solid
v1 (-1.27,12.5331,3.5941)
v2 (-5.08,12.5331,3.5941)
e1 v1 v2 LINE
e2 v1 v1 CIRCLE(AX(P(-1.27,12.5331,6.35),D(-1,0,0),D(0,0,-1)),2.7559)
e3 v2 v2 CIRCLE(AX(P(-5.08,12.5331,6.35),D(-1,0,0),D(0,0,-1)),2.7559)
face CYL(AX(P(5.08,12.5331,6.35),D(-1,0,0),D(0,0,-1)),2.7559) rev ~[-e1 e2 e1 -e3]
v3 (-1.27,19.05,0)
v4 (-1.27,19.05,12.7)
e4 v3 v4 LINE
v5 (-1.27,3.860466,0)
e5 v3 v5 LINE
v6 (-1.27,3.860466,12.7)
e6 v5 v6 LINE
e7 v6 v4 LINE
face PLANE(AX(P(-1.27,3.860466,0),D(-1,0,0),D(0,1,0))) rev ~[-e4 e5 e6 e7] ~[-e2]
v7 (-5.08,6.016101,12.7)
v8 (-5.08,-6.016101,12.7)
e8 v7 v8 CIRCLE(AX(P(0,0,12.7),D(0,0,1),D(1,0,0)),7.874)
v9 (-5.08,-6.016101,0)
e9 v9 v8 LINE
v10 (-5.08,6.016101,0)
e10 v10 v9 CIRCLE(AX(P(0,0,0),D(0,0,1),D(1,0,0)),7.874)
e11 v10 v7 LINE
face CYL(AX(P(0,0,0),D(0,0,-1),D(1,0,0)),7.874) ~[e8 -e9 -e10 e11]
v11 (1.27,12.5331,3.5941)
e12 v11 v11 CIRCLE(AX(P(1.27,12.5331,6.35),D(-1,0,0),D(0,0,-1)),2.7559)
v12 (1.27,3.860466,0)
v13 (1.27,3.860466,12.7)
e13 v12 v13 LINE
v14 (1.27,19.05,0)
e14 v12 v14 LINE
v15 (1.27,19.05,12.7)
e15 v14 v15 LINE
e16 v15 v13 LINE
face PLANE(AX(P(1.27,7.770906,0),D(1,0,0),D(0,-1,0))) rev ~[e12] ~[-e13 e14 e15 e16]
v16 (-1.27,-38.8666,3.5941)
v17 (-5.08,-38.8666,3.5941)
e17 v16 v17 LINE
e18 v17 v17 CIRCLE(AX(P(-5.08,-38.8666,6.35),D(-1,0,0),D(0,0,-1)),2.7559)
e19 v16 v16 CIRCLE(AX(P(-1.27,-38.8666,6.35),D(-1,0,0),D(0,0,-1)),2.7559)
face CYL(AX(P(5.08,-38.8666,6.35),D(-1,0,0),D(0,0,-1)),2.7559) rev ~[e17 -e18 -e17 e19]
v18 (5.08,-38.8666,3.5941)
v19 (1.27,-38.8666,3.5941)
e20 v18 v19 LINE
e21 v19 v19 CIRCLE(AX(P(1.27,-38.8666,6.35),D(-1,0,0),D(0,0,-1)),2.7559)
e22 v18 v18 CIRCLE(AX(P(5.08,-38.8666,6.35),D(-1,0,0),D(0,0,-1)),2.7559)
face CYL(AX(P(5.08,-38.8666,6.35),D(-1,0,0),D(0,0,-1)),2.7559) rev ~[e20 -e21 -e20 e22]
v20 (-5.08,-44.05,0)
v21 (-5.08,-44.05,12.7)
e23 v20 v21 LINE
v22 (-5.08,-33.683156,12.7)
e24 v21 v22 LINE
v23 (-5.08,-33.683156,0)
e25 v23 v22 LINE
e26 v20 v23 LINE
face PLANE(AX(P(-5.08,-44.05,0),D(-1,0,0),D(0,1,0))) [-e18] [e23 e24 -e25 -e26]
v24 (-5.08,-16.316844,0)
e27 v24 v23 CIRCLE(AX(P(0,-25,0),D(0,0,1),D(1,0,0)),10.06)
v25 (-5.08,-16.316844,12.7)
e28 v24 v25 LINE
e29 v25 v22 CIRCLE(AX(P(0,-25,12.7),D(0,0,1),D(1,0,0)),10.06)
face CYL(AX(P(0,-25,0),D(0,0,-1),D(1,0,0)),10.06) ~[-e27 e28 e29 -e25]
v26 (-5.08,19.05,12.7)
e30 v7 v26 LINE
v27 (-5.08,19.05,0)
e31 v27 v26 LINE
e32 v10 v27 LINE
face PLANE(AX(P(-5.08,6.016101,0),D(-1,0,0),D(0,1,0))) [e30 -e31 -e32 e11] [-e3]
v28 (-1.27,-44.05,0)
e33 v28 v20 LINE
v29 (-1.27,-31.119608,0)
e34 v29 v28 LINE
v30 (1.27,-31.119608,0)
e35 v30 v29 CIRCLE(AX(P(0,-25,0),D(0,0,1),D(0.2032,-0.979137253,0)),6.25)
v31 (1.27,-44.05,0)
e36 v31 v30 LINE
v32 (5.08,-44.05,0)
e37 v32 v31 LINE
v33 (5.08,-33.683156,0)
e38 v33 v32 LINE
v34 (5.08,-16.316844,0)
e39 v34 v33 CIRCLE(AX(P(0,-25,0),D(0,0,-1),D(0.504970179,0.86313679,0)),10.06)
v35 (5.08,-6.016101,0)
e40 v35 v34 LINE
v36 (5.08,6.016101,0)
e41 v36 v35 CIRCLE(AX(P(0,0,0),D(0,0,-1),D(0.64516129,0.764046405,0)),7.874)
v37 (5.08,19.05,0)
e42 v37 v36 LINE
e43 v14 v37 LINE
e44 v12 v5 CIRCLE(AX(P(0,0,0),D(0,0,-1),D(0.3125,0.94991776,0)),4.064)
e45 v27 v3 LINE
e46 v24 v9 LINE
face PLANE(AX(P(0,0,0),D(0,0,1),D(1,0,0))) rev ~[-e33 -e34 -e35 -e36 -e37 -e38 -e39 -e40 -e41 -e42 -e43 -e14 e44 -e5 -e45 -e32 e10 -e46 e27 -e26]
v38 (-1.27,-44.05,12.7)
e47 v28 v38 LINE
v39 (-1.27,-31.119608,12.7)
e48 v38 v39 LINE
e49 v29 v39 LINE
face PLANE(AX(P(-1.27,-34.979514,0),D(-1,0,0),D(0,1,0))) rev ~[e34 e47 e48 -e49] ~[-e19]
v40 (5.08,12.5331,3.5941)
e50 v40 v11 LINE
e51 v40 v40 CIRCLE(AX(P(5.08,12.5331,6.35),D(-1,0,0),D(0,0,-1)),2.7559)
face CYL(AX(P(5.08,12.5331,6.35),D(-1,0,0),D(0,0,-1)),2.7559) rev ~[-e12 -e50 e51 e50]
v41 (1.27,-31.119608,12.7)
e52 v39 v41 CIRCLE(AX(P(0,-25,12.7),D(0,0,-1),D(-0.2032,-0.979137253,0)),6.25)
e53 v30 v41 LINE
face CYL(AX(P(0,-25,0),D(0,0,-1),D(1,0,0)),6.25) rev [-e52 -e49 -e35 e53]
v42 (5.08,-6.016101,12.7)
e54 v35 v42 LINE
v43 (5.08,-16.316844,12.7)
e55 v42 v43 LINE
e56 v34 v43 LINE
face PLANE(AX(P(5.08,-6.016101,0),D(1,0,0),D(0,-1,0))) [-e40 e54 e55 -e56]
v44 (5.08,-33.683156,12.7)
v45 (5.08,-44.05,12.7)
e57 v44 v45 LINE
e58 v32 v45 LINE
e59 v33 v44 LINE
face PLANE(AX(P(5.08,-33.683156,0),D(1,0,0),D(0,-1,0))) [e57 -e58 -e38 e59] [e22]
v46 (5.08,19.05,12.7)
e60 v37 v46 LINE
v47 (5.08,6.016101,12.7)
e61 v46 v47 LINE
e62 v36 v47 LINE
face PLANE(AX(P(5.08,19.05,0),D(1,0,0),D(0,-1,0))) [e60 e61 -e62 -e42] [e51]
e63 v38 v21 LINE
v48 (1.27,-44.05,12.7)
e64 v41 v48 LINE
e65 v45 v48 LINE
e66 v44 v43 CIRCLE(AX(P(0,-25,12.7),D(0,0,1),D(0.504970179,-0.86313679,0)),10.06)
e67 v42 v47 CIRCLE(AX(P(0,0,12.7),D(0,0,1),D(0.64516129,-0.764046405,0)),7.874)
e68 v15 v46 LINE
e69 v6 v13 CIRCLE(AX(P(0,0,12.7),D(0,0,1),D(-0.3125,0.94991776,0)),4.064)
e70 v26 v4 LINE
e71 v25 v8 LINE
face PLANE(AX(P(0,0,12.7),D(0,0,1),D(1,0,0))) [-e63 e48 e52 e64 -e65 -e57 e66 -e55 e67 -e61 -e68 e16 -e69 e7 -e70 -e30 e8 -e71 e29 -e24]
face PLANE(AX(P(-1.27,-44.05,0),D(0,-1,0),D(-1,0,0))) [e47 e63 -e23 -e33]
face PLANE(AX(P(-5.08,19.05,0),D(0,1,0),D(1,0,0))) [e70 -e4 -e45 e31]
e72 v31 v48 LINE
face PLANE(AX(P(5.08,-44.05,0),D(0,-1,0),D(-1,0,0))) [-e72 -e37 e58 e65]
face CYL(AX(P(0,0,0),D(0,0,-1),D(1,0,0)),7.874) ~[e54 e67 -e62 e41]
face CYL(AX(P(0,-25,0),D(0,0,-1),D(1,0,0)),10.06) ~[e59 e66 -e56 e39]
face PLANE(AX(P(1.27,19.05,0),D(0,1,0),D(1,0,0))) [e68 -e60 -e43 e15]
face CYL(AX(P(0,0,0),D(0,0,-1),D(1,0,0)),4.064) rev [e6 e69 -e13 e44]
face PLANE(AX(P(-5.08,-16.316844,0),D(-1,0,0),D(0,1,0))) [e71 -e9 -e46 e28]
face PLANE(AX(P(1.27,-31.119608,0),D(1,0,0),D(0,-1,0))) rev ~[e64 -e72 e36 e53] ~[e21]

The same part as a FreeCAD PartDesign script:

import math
import FreeCAD as App
import Part
import Sketcher

V = App.Vector
Q = App.Units.Quantity

doc = App.newDocument("Part")
body = doc.addObject("PartDesign::Body", "Body")

sketch1 = body.newObject("Sketcher::SketchObject", "Sketch")
sketch1.AttachmentSupport = (doc.getObject("XY_Plane"), [""])
sketch1.MapMode = "FlatFace"
sketch1.addGeometry([
    Part.LineSegment(V(-1.27, 3.860466, 0), V(-1.27, 19.05, 0)),
    Part.LineSegment(V(-1.27, 19.05, 0), V(-5.08, 19.05, 0)),
    Part.LineSegment(V(-5.08, 19.05, 0), V(-5.08, 6.016101, 0)),
    Part.ArcOfCircle(Part.Circle(V(0, 0, 0), V(0, 0, 1), 7.874), math.radians(130.17777), math.radians(229.82223)),
    Part.LineSegment(V(-5.08, -6.016101, 0), V(-5.08, -16.316844, 0)),
    Part.ArcOfCircle(Part.Circle(V(0, -25, 0), V(0, 0, 1), 10.06), math.radians(120.329373), math.radians(239.670627)),
    Part.LineSegment(V(-5.08, -33.683156, 0), V(-5.08, -44.05, 0)),
    Part.LineSegment(V(-5.08, -44.05, 0), V(-1.27, -44.05, 0)),
    Part.LineSegment(V(-1.27, -44.05, 0), V(-1.27, -31.119608, 0)),
    Part.ArcOfCircle(Part.Circle(V(0, -25, 0), V(0, 0, 1), 6.25), math.radians(-78.275851), math.radians(258.275851)),
    Part.LineSegment(V(1.27, -31.119608, 0), V(1.27, -44.05, 0)),
    Part.LineSegment(V(1.27, -44.05, 0), V(5.08, -44.05, 0)),
    Part.LineSegment(V(5.08, -44.05, 0), V(5.08, -33.683156, 0)),
    Part.ArcOfCircle(Part.Circle(V(0, -25, 0), V(0, 0, 1), 10.06), math.radians(-59.670627), math.radians(59.670627)),
    Part.LineSegment(V(5.08, -16.316844, 0), V(5.08, -6.016101, 0)),
    Part.ArcOfCircle(Part.Circle(V(0, 0, 0), V(0, 0, 1), 7.874), math.radians(-49.82223), math.radians(49.82223)),
    Part.LineSegment(V(5.08, 6.016101, 0), V(5.08, 19.05, 0)),
    Part.LineSegment(V(5.08, 19.05, 0), V(1.27, 19.05, 0)),
    Part.LineSegment(V(1.27, 19.05, 0), V(1.27, 3.860466, 0)),
    Part.ArcOfCircle(Part.Circle(V(0, 0, 0), V(0, 0, 1), 4.064), math.radians(108.209957), math.radians(431.790043)),
], False)
sketch1.addConstraint([
    Sketcher.Constraint("Coincident", 0, 2, 1, 1),
    Sketcher.Constraint("Coincident", 1, 2, 2, 1),
    Sketcher.Constraint("Coincident", 2, 2, 3, 1),
    Sketcher.Constraint("Coincident", 3, 2, 4, 1),
    Sketcher.Constraint("Coincident", 4, 2, 5, 1),
    Sketcher.Constraint("Coincident", 5, 2, 6, 1),
    Sketcher.Constraint("Coincident", 6, 2, 7, 1),
    Sketcher.Constraint("Coincident", 7, 2, 8, 1),
    Sketcher.Constraint("Coincident", 8, 2, 9, 2),
    Sketcher.Constraint("Coincident", 9, 1, 10, 1),
    Sketcher.Constraint("Coincident", 10, 2, 11, 1),
    Sketcher.Constraint("Coincident", 11, 2, 12, 1),
    Sketcher.Constraint("Coincident", 12, 2, 13, 1),
    Sketcher.Constraint("Coincident", 13, 2, 14, 1),
    Sketcher.Constraint("Coincident", 14, 2, 15, 1),
    Sketcher.Constraint("Coincident", 15, 2, 16, 1),
    Sketcher.Constraint("Coincident", 16, 2, 17, 1),
    Sketcher.Constraint("Coincident", 17, 2, 18, 1),
    Sketcher.Constraint("Coincident", 18, 2, 19, 2),
    Sketcher.Constraint("Coincident", 19, 1, 0, 1),
    Sketcher.Constraint("Vertical", 0),
    Sketcher.Constraint("Horizontal", 1),
    Sketcher.Constraint("Vertical", 2),
    Sketcher.Constraint("Vertical", 4),
    Sketcher.Constraint("Vertical", 6),
    Sketcher.Constraint("Horizontal", 7),
    Sketcher.Constraint("Vertical", 8),
    Sketcher.Constraint("Vertical", 10),
    Sketcher.Constraint("Horizontal", 11),
    Sketcher.Constraint("Vertical", 12),
    Sketcher.Constraint("Vertical", 14),
    Sketcher.Constraint("Vertical", 16),
    Sketcher.Constraint("Horizontal", 17),
    Sketcher.Constraint("Vertical", 18),
    Sketcher.Constraint("Coincident", 3, 3, -1, 1),
    Sketcher.Constraint("Coincident", 15, 3, -1, 1),
    Sketcher.Constraint("Coincident", 19, 3, -1, 1),
    Sketcher.Constraint("Coincident", 9, 3, 5, 3),
    Sketcher.Constraint("Coincident", 13, 3, 5, 3),
    Sketcher.Constraint("Equal", 5, 13),
    Sketcher.Constraint("Equal", 3, 15),
    Sketcher.Constraint("Symmetric", 8, 2, 9, 1, -2),
    Sketcher.Constraint("Symmetric", 6, 2, 11, 2, -2),
    Sketcher.Constraint("Symmetric", 1, 2, 16, 2, -2),
    Sketcher.Constraint("Horizontal", 4, 2, 13, 2),
    Sketcher.Constraint("Horizontal", 18, 2, 19, 1),
    Sketcher.Constraint("Vertical", 2, 2, 3, 2),
    Sketcher.Constraint("Vertical", 4, 2, 5, 2),
    Sketcher.Constraint("Vertical", 0, 2, 7, 2),
    Sketcher.Constraint("Radius", 19, Q("0.16 in")),
    Sketcher.Constraint("DistanceX", 1, 2, 1, 1, Q("0.15 in")),
    Sketcher.Constraint("DistanceX", 8, 2, 9, 1, Q("0.1 in")),
    Sketcher.Constraint("DistanceY", -1, 1, 0, 2, Q("0.75 in")),
    Sketcher.Constraint("Radius", 3, Q("0.31 in")),
    Sketcher.Constraint("Radius", 9, 6.25),
    Sketcher.Constraint("DistanceY", 6, 2, 5, 3, Q("0.75 in")),
    Sketcher.Constraint("DistanceY", 5, 3, -1, 1, 25.0),
    Sketcher.Constraint("Radius", 5, 10.06),
])
pad1 = body.newObject("PartDesign::Pad", "Pad")
pad1.Profile = sketch1
pad1.Length = Q("0.5 in")

sketch2 = body.newObject("Sketcher::SketchObject", "Sketch001")
sketch2.AttachmentSupport = (doc.getObject("YZ_Plane"), [""])
sketch2.MapMode = "FlatFace"
sketch2.AttachmentOffset = App.Placement(V(0, 0, 0.2 * 25.4), App.Rotation())
sketch2.addGeometry(Part.Circle(V(-38.8666, 6.35, 0), V(0, 0, 1), 2.7559), False)
sketch2.addConstraint([
    Sketcher.Constraint("Diameter", 0, Q("0.217 in")),
    Sketcher.Constraint("DistanceY", -1, 1, 0, 3, Q("0.25 in")),
    Sketcher.Constraint("DistanceX", 0, 3, -1, 1, 38.8666),
])
doc.recompute()
hole = body.newObject("PartDesign::Hole", "Hole")
hole.Profile = sketch2
hole.ThreadType = "None"
hole.Diameter = Q("0.217 in")
hole.DepthType = "Dimension"
hole.Depth = Q("1.6 in")
hole.DrillPoint = "Flat"

sketch3 = body.newObject("Sketcher::SketchObject", "Sketch002")
sketch3.AttachmentSupport = (doc.getObject("YZ_Plane"), [""])
sketch3.MapMode = "FlatFace"
sketch3.AttachmentOffset = App.Placement(V(0, 0, 0.2 * 25.4), App.Rotation())
sketch3.addGeometry(Part.Circle(V(12.5331, 6.35, 0), V(0, 0, 1), 2.7559), False)
sketch3.addConstraint([
    Sketcher.Constraint("Diameter", 0, Q("0.217 in")),
    Sketcher.Constraint("DistanceY", -1, 1, 0, 3, Q("0.25 in")),
    Sketcher.Constraint("DistanceX", -1, 1, 0, 3, 12.533),
])
doc.recompute()
hole2 = body.newObject("PartDesign::Hole", "Hole001")
hole2.Profile = sketch3
hole2.ThreadType = "None"
hole2.Diameter = Q("0.217 in")
hole2.DepthType = "Dimension"
hole2.Depth = Q("1.6 in")
hole2.DrillPoint = "Flat"

doc.recompute()
